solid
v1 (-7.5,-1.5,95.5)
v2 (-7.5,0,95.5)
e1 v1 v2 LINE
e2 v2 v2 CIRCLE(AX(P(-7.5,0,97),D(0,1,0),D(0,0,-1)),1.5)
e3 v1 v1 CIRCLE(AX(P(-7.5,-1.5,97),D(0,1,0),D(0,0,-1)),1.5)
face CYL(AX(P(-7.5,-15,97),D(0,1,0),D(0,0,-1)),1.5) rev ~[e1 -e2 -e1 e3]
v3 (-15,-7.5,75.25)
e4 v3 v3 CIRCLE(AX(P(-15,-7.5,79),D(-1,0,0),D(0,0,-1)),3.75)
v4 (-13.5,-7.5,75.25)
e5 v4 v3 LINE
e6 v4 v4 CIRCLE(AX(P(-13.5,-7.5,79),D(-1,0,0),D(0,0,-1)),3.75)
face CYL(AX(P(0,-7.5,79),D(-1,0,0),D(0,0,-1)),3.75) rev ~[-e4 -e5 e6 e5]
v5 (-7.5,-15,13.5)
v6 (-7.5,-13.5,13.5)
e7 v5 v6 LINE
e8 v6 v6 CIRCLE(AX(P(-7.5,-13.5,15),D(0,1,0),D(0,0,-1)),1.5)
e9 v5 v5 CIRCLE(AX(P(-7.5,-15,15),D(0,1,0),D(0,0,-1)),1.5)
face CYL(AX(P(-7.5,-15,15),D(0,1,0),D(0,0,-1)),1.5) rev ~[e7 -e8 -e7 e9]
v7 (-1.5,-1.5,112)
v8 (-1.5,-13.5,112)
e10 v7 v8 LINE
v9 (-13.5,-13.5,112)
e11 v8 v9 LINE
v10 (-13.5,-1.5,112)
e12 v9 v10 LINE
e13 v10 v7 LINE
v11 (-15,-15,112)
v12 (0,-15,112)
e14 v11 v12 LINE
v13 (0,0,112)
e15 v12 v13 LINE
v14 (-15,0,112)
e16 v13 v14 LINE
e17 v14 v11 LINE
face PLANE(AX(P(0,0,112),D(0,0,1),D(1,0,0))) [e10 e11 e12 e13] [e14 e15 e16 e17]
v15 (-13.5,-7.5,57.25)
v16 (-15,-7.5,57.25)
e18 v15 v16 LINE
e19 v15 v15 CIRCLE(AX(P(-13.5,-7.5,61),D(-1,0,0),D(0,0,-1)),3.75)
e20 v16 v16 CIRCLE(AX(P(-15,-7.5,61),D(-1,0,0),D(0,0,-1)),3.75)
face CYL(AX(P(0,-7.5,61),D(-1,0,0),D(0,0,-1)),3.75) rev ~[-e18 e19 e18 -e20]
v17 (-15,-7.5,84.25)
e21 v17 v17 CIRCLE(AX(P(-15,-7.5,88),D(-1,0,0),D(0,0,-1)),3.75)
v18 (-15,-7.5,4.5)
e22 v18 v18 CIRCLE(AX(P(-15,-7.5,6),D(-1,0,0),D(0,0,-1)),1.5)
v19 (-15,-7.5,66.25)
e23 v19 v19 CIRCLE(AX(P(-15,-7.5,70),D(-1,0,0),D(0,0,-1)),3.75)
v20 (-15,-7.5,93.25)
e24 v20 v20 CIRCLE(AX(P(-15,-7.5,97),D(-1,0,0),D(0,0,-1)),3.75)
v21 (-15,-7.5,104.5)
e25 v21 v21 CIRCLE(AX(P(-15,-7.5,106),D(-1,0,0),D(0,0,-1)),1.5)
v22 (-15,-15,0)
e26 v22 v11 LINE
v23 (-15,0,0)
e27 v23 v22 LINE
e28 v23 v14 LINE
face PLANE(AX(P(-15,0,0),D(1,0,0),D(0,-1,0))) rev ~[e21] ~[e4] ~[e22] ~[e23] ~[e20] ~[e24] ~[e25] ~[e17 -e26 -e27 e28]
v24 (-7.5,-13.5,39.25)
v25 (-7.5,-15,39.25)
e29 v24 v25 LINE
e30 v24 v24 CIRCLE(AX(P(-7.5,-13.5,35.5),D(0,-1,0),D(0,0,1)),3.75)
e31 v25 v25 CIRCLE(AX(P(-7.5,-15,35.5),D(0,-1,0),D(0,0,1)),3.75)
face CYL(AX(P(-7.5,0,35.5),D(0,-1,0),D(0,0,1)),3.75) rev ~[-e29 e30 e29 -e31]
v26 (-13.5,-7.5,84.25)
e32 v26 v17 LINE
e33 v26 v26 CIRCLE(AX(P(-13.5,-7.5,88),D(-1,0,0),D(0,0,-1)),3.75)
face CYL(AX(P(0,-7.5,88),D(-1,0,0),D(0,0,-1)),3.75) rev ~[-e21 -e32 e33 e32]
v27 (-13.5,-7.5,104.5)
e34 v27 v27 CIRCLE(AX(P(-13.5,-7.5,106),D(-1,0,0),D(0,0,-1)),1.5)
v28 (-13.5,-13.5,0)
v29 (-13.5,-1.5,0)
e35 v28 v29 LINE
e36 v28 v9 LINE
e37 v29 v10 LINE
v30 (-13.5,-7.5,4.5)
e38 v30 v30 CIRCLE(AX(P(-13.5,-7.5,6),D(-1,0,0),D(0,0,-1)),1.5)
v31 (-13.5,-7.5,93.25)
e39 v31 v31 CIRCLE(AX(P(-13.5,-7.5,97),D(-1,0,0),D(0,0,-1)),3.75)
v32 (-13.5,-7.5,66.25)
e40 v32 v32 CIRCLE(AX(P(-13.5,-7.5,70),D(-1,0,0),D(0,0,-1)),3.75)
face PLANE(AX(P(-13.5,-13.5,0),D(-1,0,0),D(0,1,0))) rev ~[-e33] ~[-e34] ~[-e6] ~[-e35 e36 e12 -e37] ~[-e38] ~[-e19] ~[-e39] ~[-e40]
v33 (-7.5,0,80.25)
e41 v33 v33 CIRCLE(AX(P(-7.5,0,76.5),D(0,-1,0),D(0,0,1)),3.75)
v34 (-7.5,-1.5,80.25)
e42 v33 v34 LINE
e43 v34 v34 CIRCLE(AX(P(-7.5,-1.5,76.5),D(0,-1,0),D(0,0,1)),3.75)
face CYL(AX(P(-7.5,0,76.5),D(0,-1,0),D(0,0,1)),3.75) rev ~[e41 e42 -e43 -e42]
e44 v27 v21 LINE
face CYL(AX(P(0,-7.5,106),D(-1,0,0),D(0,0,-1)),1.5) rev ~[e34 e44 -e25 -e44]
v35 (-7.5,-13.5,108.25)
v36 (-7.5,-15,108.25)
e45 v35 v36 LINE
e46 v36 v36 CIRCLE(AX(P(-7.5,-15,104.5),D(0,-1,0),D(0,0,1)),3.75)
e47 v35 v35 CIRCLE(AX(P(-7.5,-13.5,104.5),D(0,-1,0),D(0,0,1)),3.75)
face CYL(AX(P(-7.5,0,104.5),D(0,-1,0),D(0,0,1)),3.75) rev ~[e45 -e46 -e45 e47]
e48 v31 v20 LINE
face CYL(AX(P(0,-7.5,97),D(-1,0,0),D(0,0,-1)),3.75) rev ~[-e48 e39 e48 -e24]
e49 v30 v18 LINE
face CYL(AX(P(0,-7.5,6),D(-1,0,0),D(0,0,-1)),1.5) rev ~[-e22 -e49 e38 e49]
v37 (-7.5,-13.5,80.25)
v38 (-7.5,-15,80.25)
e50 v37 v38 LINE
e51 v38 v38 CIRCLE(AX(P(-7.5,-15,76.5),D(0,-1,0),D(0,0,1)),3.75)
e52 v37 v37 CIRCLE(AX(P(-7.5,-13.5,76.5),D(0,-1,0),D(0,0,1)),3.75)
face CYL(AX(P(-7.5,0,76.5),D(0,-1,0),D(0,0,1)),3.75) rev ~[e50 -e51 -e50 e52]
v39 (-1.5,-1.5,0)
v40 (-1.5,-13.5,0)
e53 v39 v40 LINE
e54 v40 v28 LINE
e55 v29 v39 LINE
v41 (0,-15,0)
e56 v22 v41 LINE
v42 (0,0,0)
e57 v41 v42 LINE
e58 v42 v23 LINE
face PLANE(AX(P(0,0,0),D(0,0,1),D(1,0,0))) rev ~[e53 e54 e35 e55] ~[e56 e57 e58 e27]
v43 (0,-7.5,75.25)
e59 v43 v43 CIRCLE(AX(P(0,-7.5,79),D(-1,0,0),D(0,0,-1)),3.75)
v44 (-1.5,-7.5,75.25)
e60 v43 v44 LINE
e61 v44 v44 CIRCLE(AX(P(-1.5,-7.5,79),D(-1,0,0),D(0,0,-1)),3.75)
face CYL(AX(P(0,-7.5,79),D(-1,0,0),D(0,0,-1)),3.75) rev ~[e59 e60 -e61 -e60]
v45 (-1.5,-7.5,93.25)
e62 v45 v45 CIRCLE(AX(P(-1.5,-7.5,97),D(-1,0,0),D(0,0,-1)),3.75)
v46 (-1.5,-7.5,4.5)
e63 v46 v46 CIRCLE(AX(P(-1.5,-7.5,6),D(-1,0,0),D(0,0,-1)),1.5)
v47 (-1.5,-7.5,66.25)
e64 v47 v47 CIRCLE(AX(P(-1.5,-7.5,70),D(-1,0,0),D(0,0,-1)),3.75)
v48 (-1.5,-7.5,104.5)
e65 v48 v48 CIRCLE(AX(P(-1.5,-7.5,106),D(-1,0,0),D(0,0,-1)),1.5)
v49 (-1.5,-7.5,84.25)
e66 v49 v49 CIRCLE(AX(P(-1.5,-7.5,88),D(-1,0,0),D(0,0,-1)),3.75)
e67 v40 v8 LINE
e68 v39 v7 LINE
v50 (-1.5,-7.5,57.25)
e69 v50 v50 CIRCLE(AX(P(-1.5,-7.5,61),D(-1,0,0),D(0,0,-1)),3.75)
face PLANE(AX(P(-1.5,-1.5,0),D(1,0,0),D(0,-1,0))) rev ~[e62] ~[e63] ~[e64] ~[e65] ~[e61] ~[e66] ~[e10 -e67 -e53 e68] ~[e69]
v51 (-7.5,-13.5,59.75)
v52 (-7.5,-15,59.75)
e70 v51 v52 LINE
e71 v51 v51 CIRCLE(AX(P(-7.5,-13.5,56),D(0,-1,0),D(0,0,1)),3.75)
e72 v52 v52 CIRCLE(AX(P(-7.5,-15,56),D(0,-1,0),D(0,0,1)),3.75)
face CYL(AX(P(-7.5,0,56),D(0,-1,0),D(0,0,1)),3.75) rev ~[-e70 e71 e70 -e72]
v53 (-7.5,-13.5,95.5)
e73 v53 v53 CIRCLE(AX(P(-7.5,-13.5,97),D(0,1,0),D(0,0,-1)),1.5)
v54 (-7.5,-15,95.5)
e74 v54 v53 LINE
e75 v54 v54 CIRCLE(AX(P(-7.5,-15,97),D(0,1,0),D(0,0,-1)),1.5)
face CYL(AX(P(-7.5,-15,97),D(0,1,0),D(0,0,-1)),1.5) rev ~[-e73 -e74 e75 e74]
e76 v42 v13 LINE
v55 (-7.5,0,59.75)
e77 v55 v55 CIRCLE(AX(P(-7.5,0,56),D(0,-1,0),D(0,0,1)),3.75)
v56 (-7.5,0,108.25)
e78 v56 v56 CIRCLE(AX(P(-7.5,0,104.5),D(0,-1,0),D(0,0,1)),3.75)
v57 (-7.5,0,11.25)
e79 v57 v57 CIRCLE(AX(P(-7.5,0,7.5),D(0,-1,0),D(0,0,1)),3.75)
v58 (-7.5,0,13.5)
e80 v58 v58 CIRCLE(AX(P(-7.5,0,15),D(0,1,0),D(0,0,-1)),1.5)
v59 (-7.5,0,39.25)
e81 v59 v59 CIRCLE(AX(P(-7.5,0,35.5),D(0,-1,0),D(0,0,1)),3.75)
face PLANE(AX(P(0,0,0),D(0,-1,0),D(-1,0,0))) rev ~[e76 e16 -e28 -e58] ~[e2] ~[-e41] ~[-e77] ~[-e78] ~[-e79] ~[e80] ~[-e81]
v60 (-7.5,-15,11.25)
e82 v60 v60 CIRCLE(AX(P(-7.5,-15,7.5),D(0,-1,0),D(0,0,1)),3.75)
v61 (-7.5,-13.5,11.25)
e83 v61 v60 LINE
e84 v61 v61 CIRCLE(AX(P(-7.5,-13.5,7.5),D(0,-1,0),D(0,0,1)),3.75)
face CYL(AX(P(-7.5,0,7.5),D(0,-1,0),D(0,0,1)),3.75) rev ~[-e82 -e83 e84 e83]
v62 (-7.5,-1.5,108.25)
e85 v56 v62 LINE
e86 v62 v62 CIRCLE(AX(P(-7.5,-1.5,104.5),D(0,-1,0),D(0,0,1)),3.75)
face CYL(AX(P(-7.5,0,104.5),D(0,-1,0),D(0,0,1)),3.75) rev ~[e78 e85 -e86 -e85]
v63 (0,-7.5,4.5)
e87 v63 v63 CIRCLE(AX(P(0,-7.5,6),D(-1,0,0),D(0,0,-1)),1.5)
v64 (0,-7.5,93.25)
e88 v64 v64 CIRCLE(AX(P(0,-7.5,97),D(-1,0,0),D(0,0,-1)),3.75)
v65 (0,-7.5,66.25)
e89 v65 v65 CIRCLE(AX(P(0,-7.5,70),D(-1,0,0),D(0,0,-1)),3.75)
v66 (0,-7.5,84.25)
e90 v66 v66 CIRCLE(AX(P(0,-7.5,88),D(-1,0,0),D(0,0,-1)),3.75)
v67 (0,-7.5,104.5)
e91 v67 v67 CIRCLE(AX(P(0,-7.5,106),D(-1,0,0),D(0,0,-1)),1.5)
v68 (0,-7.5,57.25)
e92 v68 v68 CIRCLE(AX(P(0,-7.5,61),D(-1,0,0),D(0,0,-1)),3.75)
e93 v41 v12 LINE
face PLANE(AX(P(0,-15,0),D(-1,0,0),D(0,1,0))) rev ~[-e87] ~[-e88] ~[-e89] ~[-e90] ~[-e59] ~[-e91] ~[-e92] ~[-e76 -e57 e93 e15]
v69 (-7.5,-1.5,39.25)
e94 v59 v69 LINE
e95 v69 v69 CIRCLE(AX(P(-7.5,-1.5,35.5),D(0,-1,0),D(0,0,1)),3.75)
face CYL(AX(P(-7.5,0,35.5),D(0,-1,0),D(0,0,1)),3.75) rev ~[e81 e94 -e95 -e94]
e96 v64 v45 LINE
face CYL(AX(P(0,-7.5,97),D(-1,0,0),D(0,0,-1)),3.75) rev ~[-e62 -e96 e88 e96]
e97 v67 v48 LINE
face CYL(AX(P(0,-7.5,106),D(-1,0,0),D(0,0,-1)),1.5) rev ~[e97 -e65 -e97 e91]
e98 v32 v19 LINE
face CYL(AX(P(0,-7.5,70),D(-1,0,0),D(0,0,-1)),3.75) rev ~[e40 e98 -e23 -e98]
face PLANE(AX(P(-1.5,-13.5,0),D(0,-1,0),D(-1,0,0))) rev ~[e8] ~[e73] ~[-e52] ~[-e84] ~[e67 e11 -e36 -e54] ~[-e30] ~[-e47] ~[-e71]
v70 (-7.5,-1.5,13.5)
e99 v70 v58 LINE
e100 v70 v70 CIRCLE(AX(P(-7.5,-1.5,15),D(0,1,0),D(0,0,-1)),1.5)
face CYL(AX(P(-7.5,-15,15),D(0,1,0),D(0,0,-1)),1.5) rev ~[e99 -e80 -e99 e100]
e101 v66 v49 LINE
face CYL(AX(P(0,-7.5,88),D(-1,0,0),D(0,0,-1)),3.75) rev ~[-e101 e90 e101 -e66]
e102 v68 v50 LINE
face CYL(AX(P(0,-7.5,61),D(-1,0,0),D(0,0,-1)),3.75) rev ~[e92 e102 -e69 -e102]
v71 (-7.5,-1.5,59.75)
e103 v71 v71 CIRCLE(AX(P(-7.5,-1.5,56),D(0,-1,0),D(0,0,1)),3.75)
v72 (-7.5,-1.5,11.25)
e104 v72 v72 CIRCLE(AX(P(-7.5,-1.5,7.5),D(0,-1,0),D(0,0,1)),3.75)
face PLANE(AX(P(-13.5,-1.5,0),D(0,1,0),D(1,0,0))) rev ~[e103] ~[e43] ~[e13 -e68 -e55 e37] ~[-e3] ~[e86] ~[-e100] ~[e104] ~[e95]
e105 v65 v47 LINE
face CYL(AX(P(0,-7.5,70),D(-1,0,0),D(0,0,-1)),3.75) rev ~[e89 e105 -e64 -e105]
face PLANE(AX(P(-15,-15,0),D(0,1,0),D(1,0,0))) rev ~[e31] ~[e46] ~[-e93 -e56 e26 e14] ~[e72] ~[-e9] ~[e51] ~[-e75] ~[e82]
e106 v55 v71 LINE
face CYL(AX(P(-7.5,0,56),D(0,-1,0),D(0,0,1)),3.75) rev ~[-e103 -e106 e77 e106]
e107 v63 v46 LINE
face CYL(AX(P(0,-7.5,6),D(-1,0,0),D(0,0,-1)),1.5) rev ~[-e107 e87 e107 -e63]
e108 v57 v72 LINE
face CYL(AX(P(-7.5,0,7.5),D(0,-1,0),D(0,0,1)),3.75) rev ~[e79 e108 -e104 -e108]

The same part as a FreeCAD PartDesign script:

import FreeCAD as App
import Part
import Sketcher
from FreeCAD import Vector


def add_polygon(sketch, points):
    """Adds a closed chain of lines whose ends are joined by coincident constraints."""
    first, n = sketch.GeometryCount, len(points)
    for a, b in zip(points, points[1:] + points[:1]):
        sketch.addGeometry(Part.LineSegment(App.Vector(*a, 0), App.Vector(*b, 0)), False)
    for i in range(n):
        sketch.addConstraint(Sketcher.Constraint("Coincident", first + i, 2, first + (i + 1) % n, 1))

doc = App.newDocument("Part")
body = doc.addObject("PartDesign::Body", "Body")

# Sketch on XY plane
sketch1 = body.newObject("Sketcher::SketchObject", "Sketch")
sketch1.AttachmentSupport = (doc.getObject("XY_Plane"), [""])
sketch1.MapMode = "FlatFace"
add_polygon(sketch1, [(0, -15), (0, 0), (-15, 0), (-15, -15)])  # lines 0-3
add_polygon(sketch1, [(-14, -14), (-14, -2), (-2, -2), (-2, -14)])  # lines 4-7
sketch1.addConstraint([
    Sketcher.Constraint("Vertical", 0),
    Sketcher.Constraint("Horizontal", 1),
    Sketcher.Constraint("Vertical", 2),
    Sketcher.Constraint("Horizontal", 3),
    Sketcher.Constraint("Vertical", 4),
    Sketcher.Constraint("Horizontal", 5),
    Sketcher.Constraint("Vertical", 6),
    Sketcher.Constraint("Horizontal", 7),
    Sketcher.Constraint("Coincident", 0, 2, -1, 1),
    Sketcher.Constraint("Equal", 3, 0),
    Sketcher.Constraint("Equal", 7, 4),
    Sketcher.Constraint("DistanceX", 1, 2, 1, 1, 15.0),
    Sketcher.Constraint("DistanceX", 5, 1, 5, 2, 12.0),
    Sketcher.Constraint("DistanceY", 4, 2, -1, 1, 1.5),
    Sketcher.Constraint("DistanceX", 5, 2, -1, 1, 1.5),
])
pad1 = body.newObject("PartDesign::Pad", "Pad")
pad1.Profile = sketch1
pad1.Length = 112

# Sketch on YZ plane
sketch2 = body.newObject("Sketcher::SketchObject", "Sketch001")
sketch2.AttachmentSupport = (doc.getObject("YZ_Plane"), [""])
sketch2.MapMode = "FlatFace"
sketch2.addGeometry([
    Part.Circle(Vector(-7.5, 106, 0), Vector(0, 0, 1), 1.5),
    Part.Circle(Vector(-7.5, 6, 0), Vector(0, 0, 1), 1.5),
], False)
sketch2.addConstraint([
    Sketcher.Constraint("Equal", 0, 1),
    Sketcher.Constraint("Vertical", 0, 3, 1, 3),
    Sketcher.Constraint("Diameter", 0, 3.0),
    Sketcher.Constraint("DistanceY", -1, 1, 0, 3, 106.0),
    Sketcher.Constraint("DistanceY", -1, 1, 1, 3, 6.0),
    Sketcher.Constraint("DistanceX", 0, 3, -1, 1, 7.5),
])
doc.recompute()
hole = body.newObject("PartDesign::Hole", "Hole")
hole.Profile = sketch2
hole.ThreadType = "None"
hole.Diameter = 3
hole.DepthType = "ThroughAll"

# Sketch on XZ plane
sketch3 = body.newObject("Sketcher::SketchObject", "Sketch002")
sketch3.AttachmentSupport = (doc.getObject("XZ_Plane"), [""])
sketch3.MapMode = "FlatFace"
sketch3.AttachmentOffset = App.Placement(Vector(0, 0, 15), App.Rotation())
sketch3.addGeometry([
    Part.Circle(Vector(-7.5, 97, 0), Vector(0, 0, 1), 1.5),
    Part.Circle(Vector(-7.5, 15, 0), Vector(0, 0, 1), 1.5),
], False)
sketch3.addConstraint([
    Sketcher.Constraint("Equal", 0, 1),
    Sketcher.Constraint("Vertical", 0, 3, 1, 3),
    Sketcher.Constraint("Diameter", 0, 3.0),
    Sketcher.Constraint("DistanceY", -1, 1, 0, 3, 97.0),
    Sketcher.Constraint("DistanceY", -1, 1, 1, 3, 15.0),
    Sketcher.Constraint("DistanceX", 0, 3, -1, 1, 7.5),
])
doc.recompute()
hole2 = body.newObject("PartDesign::Hole", "Hole001")
hole2.Profile = sketch3
hole2.ThreadType = "None"
hole2.Diameter = 3
hole2.DepthType = "ThroughAll"

# Sketch on XZ plane
sketch4 = body.newObject("Sketcher::SketchObject", "Sketch003")
sketch4.AttachmentSupport = (doc.getObject("XZ_Plane"), [""])
sketch4.MapMode = "FlatFace"
sketch4.addGeometry([
    Part.Circle(Vector(-7.5, 7.5, 0), Vector(0, 0, 1), 3.8),  # 0
    Part.Circle(Vector(-7.5, 104.5, 0), Vector(0, 0, 1), 3.8),  # 1
    Part.Circle(Vector(-7.5, 76.5, 0), Vector(0, 0, 1), 3.8),  # 2
    Part.Circle(Vector(-7.5, 56, 0), Vector(0, 0, 1), 3.8),  # 3
    Part.Circle(Vector(-7.5, 35.5, 0), Vector(0, 0, 1), 3.8),  # 4
], False)
sketch4.addConstraint([
    Sketcher.Constraint("Equal", 0, 1),
    Sketcher.Constraint("Equal", 1, 2),
    Sketcher.Constraint("Equal", 2, 3),
    Sketcher.Constraint("Equal", 3, 4),
    Sketcher.Constraint("Vertical", 0, 3, 1, 3),
    Sketcher.Constraint("Vertical", 1, 3, 2, 3),
    Sketcher.Constraint("Vertical", 2, 3, 3, 3),
    Sketcher.Constraint("Vertical", 3, 3, 4, 3),
    Sketcher.Constraint("Diameter", 0, 7.5),
    Sketcher.Constraint("DistanceY", -1, 1, 3, 3, 56.0),
    Sketcher.Constraint("DistanceY", 0, 3, 1, 3, 97.0),
    Sketcher.Constraint("DistanceY", 2, 3, 1, 3, 28.0),
    Sketcher.Constraint("DistanceY", 0, 3, 4, 3, 28.0),
    Sketcher.Constraint("DistanceX", 0, 3, -1, 1, 7.5),
    Sketcher.Constraint("DistanceY", -1, 1, 0, 3, 7.5),
])
doc.recompute()
hole3 = body.newObject("PartDesign::Hole", "Hole002")
hole3.Profile = sketch4
hole3.ThreadType = "None"
hole3.Diameter = 7.5
hole3.DepthType = "ThroughAll"
hole3.Reversed = True

# Sketch on YZ plane
sketch5 = body.newObject("Sketcher::SketchObject", "Sketch004")
sketch5.AttachmentSupport = (doc.getObject("YZ_Plane"), [""])
sketch5.MapMode = "FlatFace"
sketch5.addGeometry([
    Part.Circle(Vector(-7.5, 97, 0), Vector(0, 0, 1), 3.8),  # 0
    Part.Circle(Vector(-7.5, 88, 0), Vector(0, 0, 1), 3.8),  # 1
    Part.Circle(Vector(-7.5, 79, 0), Vector(0, 0, 1), 3.8),  # 2
    Part.Circle(Vector(-7.5, 70, 0), Vector(0, 0, 1), 3.8),  # 3
    Part.Circle(Vector(-7.5, 61, 0), Vector(0, 0, 1), 3.8),  # 4
], False)
sketch5.addConstraint([
    Sketcher.Constraint("Equal", 0, 1),
    Sketcher.Constraint("Equal", 1, 2),
    Sketcher.Constraint("Equal", 2, 3),
    Sketcher.Constraint("Equal", 3, 4),
    Sketcher.Constraint("Vertical", 0, 3, 1, 3),
    Sketcher.Constraint("Vertical", 1, 3, 2, 3),
    Sketcher.Constraint("Vertical", 2, 3, 3, 3),
    Sketcher.Constraint("Vertical", 3, 3, 4, 3),
    Sketcher.Constraint("Diameter", 0, 7.5),
    Sketcher.Constraint("DistanceY", -1, 1, 0, 3, 97.0),
    Sketcher.Constraint("DistanceY", -1, 1, 1, 3, 88.0),
    Sketcher.Constraint("DistanceY", -1, 1, 2, 3, 79.0),
    Sketcher.Constraint("DistanceY", -1, 1, 3, 3, 70.0),
    Sketcher.Constraint("DistanceY", -1, 1, 4, 3, 61.0),
    Sketcher.Constraint("DistanceX", 0, 3, -1, 1, 7.5),
])
doc.recompute()
hole4 = body.newObject("PartDesign::Hole", "Hole003")
hole4.Profile = sketch5
hole4.ThreadType = "None"
hole4.Diameter = 7.5
hole4.DepthType = "ThroughAll"

doc.recompute()
